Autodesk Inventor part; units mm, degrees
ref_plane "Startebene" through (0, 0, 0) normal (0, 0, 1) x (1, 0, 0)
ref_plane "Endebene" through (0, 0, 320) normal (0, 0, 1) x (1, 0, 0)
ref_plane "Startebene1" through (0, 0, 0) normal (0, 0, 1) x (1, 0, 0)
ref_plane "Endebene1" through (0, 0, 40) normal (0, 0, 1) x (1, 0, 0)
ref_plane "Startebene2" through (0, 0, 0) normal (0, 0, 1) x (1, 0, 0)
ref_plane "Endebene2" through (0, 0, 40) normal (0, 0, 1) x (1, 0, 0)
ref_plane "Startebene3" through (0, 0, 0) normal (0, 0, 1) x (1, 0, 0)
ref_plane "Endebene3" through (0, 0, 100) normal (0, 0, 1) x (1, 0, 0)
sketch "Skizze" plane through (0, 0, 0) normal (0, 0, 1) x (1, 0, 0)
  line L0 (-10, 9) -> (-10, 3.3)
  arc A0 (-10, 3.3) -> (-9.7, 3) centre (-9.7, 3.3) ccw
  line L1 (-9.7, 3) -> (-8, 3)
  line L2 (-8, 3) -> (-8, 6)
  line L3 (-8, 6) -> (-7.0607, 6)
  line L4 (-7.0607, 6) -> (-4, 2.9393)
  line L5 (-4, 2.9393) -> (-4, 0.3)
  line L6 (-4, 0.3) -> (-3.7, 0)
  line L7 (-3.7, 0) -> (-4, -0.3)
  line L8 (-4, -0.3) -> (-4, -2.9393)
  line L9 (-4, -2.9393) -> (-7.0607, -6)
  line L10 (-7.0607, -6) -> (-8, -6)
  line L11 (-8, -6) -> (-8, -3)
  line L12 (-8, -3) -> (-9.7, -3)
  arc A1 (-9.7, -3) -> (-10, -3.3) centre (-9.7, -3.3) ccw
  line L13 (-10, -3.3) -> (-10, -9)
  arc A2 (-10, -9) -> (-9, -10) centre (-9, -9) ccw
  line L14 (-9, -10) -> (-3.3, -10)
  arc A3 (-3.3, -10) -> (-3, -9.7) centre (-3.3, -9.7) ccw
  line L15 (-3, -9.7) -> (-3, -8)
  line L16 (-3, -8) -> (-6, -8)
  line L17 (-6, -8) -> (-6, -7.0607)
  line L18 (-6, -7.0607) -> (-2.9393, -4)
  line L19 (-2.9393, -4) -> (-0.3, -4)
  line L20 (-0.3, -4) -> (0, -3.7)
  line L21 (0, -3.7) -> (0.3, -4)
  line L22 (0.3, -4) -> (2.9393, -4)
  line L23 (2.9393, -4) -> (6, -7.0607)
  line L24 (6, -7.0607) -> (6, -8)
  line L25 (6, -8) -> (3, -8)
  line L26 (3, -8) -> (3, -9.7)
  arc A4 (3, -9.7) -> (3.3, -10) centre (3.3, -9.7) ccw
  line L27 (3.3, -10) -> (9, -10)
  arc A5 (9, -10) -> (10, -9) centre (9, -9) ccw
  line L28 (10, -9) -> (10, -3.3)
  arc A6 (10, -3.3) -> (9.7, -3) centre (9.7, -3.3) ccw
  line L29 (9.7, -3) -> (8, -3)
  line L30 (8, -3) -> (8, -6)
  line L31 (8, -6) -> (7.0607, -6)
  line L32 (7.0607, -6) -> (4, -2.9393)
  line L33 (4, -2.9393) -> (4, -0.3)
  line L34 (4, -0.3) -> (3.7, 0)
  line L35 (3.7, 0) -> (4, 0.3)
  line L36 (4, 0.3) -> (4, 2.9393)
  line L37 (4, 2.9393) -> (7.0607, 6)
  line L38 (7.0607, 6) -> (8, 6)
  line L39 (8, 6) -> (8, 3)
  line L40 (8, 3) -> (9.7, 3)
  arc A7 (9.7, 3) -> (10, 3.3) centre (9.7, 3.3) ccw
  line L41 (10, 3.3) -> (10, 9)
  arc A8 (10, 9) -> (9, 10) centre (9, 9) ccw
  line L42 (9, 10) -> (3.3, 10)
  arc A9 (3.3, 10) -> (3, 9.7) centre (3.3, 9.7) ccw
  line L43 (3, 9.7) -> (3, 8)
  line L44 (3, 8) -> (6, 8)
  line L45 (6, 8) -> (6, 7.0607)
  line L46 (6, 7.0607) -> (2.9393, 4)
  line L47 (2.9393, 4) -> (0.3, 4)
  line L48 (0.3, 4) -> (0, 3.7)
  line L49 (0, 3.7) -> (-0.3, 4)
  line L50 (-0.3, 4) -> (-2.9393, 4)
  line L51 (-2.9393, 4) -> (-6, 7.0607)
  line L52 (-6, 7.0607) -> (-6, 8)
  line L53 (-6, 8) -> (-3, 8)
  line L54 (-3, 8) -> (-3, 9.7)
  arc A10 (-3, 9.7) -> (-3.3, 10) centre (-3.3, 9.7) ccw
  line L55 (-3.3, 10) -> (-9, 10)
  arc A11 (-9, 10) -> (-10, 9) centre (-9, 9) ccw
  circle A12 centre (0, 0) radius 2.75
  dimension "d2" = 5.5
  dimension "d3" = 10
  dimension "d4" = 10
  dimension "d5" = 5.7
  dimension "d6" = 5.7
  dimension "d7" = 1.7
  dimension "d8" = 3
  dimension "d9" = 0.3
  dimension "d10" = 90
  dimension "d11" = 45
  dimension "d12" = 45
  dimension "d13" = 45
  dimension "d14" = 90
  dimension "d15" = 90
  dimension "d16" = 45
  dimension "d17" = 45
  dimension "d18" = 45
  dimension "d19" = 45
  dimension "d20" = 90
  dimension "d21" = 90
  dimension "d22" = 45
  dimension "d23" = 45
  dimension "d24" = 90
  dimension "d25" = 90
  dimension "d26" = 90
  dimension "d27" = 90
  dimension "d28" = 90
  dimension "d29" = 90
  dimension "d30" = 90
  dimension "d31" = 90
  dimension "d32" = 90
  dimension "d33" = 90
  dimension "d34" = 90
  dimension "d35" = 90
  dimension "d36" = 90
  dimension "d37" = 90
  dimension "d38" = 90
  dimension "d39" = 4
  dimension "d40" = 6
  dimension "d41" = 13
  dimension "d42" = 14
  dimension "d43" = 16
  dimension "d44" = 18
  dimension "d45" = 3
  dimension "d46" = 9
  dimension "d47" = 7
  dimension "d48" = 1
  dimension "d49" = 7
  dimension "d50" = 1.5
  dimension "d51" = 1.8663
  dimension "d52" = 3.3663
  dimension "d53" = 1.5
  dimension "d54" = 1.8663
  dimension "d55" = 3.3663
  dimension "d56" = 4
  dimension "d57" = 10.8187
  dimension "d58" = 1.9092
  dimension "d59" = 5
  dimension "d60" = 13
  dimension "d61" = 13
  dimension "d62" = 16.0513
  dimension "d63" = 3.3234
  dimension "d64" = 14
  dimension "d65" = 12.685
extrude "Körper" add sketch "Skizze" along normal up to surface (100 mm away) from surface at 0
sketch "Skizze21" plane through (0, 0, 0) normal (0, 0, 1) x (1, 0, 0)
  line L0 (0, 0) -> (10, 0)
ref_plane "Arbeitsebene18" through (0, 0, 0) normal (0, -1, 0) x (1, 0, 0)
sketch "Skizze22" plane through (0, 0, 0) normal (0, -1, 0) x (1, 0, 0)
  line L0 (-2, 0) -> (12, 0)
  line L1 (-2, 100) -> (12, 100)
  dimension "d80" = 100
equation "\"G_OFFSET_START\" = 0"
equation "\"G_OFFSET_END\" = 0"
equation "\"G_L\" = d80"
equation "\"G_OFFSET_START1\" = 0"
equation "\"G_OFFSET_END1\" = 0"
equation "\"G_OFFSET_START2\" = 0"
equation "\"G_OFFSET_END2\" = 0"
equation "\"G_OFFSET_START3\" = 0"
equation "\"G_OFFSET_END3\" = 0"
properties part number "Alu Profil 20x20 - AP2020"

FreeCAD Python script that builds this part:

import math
import FreeCAD as App
import Part
import Sketcher

doc = App.newDocument("Part")
body = doc.addObject("PartDesign::Body", "Body")

# Sketch on XY plane
sketch1 = doc.addObject("Sketcher::SketchObject", "Sketch")
body.addObject(sketch1)
sketch1.AttachmentSupport = (doc.XY_Plane, [""])
sketch1.MapMode = "FlatFace"
sketch1.addGeometry(Part.ArcOfCircle(Part.Circle(App.Vector(-9, 9, 0), App.Vector(0, 0, 1), 1), math.radians(90), math.radians(180)), False)
sketch1.addGeometry(Part.LineSegment(App.Vector(-10, 9, 0), App.Vector(-10, 3.3, 0)), False)
sketch1.addGeometry(Part.ArcOfCircle(Part.Circle(App.Vector(-9.7, 3.3, 0), App.Vector(0, 0, 1), 0.3), math.radians(180), math.radians(270)), False)
sketch1.addGeometry(Part.LineSegment(App.Vector(-9.7, 3, 0), App.Vector(-8, 3, 0)), False)
sketch1.addGeometry(Part.LineSegment(App.Vector(-8, 3, 0), App.Vector(-8, 6, 0)), False)
sketch1.addGeometry(Part.LineSegment(App.Vector(-8, 6, 0), App.Vector(-7.0607, 6, 0)), False)
sketch1.addGeometry(Part.LineSegment(App.Vector(-7.0607, 6, 0), App.Vector(-4, 2.9393, 0)), False)
sketch1.addGeometry(Part.LineSegment(App.Vector(-4, 2.9393, 0), App.Vector(-4, 0.3, 0)), False)
sketch1.addGeometry(Part.LineSegment(App.Vector(-4, 0.3, 0), App.Vector(-3.7, 0, 0)), False)
sketch1.addGeometry(Part.LineSegment(App.Vector(-3.7, 0, 0), App.Vector(-4, -0.3, 0)), False)
sketch1.addGeometry(Part.LineSegment(App.Vector(-4, -0.3, 0), App.Vector(-4, -2.9393, 0)), False)
sketch1.addGeometry(Part.LineSegment(App.Vector(-4, -2.9393, 0), App.Vector(-7.0607, -6, 0)), False)
sketch1.addGeometry(Part.LineSegment(App.Vector(-7.0607, -6, 0), App.Vector(-8, -6, 0)), False)
sketch1.addGeometry(Part.LineSegment(App.Vector(-8, -6, 0), App.Vector(-8, -3, 0)), False)
sketch1.addGeometry(Part.LineSegment(App.Vector(-8, -3, 0), App.Vector(-9.7, -3, 0)), False)
sketch1.addGeometry(Part.ArcOfCircle(Part.Circle(App.Vector(-9.7, -3.3, 0), App.Vector(0, 0, 1), 0.3), math.radians(90), math.radians(180)), False)
sketch1.addGeometry(Part.LineSegment(App.Vector(-10, -3.3, 0), App.Vector(-10, -9, 0)), False)
sketch1.addGeometry(Part.ArcOfCircle(Part.Circle(App.Vector(-9, -9, 0), App.Vector(0, 0, 1), 1), math.radians(180), math.radians(270)), False)
sketch1.addGeometry(Part.LineSegment(App.Vector(-9, -10, 0), App.Vector(-3.3, -10, 0)), False)
sketch1.addGeometry(Part.ArcOfCircle(Part.Circle(App.Vector(-3.3, -9.7, 0), App.Vector(0, 0, 1), 0.3), math.radians(-90), math.radians(0)), False)
sketch1.addGeometry(Part.LineSegment(App.Vector(-3, -9.7, 0), App.Vector(-3, -8, 0)), False)
sketch1.addGeometry(Part.LineSegment(App.Vector(-3, -8, 0), App.Vector(-6, -8, 0)), False)
sketch1.addGeometry(Part.LineSegment(App.Vector(-6, -8, 0), App.Vector(-6, -7.0607, 0)), False)
sketch1.addGeometry(Part.LineSegment(App.Vector(-6, -7.0607, 0), App.Vector(-2.9393, -4, 0)), False)
sketch1.addGeometry(Part.LineSegment(App.Vector(-2.9393, -4, 0), App.Vector(-0.3, -4, 0)), False)
sketch1.addGeometry(Part.LineSegment(App.Vector(-0.3, -4, 0), App.Vector(0, -3.7, 0)), False)
sketch1.addGeometry(Part.LineSegment(App.Vector(0, -3.7, 0), App.Vector(0.3, -4, 0)), False)
sketch1.addGeometry(Part.LineSegment(App.Vector(0.3, -4, 0), App.Vector(2.9393, -4, 0)), False)
sketch1.addGeometry(Part.LineSegment(App.Vector(2.9393, -4, 0), App.Vector(6, -7.0607, 0)), False)
sketch1.addGeometry(Part.LineSegment(App.Vector(6, -7.0607, 0), App.Vector(6, -8, 0)), False)
sketch1.addGeometry(Part.LineSegment(App.Vector(6, -8, 0), App.Vector(3, -8, 0)), False)
sketch1.addGeometry(Part.LineSegment(App.Vector(3, -8, 0), App.Vector(3, -9.7, 0)), False)
sketch1.addGeometry(Part.ArcOfCircle(Part.Circle(App.Vector(3.3, -9.7, 0), App.Vector(0, 0, 1), 0.3), math.radians(180), math.radians(270)), False)
sketch1.addGeometry(Part.LineSegment(App.Vector(3.3, -10, 0), App.Vector(9, -10, 0)), False)
sketch1.addGeometry(Part.ArcOfCircle(Part.Circle(App.Vector(9, -9, 0), App.Vector(0, 0, 1), 1), math.radians(-90), math.radians(0)), False)
sketch1.addGeometry(Part.LineSegment(App.Vector(10, -9, 0), App.Vector(10, -3.3, 0)), False)
sketch1.addGeometry(Part.ArcOfCircle(Part.Circle(App.Vector(9.7, -3.3, 0), App.Vector(0, 0, 1), 0.3), math.radians(0), math.radians(90)), False)
sketch1.addGeometry(Part.LineSegment(App.Vector(9.7, -3, 0), App.Vector(8, -3, 0)), False)
sketch1.addGeometry(Part.LineSegment(App.Vector(8, -3, 0), App.Vector(8, -6, 0)), False)
sketch1.addGeometry(Part.LineSegment(App.Vector(8, -6, 0), App.Vector(7.0607, -6, 0)), False)
sketch1.addGeometry(Part.LineSegment(App.Vector(7.0607, -6, 0), App.Vector(4, -2.9393, 0)), False)
sketch1.addGeometry(Part.LineSegment(App.Vector(4, -2.9393, 0), App.Vector(4, -0.3, 0)), False)
sketch1.addGeometry(Part.LineSegment(App.Vector(4, -0.3, 0), App.Vector(3.7, 0, 0)), False)
sketch1.addGeometry(Part.LineSegment(App.Vector(3.7, 0, 0), App.Vector(4, 0.3, 0)), False)
sketch1.addGeometry(Part.LineSegment(App.Vector(4, 0.3, 0), App.Vector(4, 2.9393, 0)), False)
sketch1.addGeometry(Part.LineSegment(App.Vector(4, 2.9393, 0), App.Vector(7.0607, 6, 0)), False)
sketch1.addGeometry(Part.LineSegment(App.Vector(7.0607, 6, 0), App.Vector(8, 6, 0)), False)
sketch1.addGeometry(Part.LineSegment(App.Vector(8, 6, 0), App.Vector(8, 3, 0)), False)
sketch1.addGeometry(Part.LineSegment(App.Vector(8, 3, 0), App.Vector(9.7, 3, 0)), False)
sketch1.addGeometry(Part.ArcOfCircle(Part.Circle(App.Vector(9.7, 3.3, 0), App.Vector(0, 0, 1), 0.3), math.radians(-90), math.radians(0)), False)
sketch1.addGeometry(Part.LineSegment(App.Vector(10, 3.3, 0), App.Vector(10, 9, 0)), False)
sketch1.addGeometry(Part.ArcOfCircle(Part.Circle(App.Vector(9, 9, 0), App.Vector(0, 0, 1), 1), math.radians(0), math.radians(90)), False)
sketch1.addGeometry(Part.LineSegment(App.Vector(9, 10, 0), App.Vector(3.3, 10, 0)), False)
sketch1.addGeometry(Part.ArcOfCircle(Part.Circle(App.Vector(3.3, 9.7, 0), App.Vector(0, 0, 1), 0.3), math.radians(90), math.radians(180)), False)
sketch1.addGeometry(Part.LineSegment(App.Vector(3, 9.7, 0), App.Vector(3, 8, 0)), False)
sketch1.addGeometry(Part.LineSegment(App.Vector(3, 8, 0), App.Vector(6, 8, 0)), False)
sketch1.addGeometry(Part.LineSegment(App.Vector(6, 8, 0), App.Vector(6, 7.0607, 0)), False)
sketch1.addGeometry(Part.LineSegment(App.Vector(6, 7.0607, 0), App.Vector(2.9393, 4, 0)), False)
sketch1.addGeometry(Part.LineSegment(App.Vector(2.9393, 4, 0), App.Vector(0.3, 4, 0)), False)
sketch1.addGeometry(Part.LineSegment(App.Vector(0.3, 4, 0), App.Vector(0, 3.7, 0)), False)
sketch1.addGeometry(Part.LineSegment(App.Vector(0, 3.7, 0), App.Vector(-0.3, 4, 0)), False)
sketch1.addGeometry(Part.LineSegment(App.Vector(-0.3, 4, 0), App.Vector(-2.9393, 4, 0)), False)
sketch1.addGeometry(Part.LineSegment(App.Vector(-2.9393, 4, 0), App.Vector(-6, 7.0607, 0)), False)
sketch1.addGeometry(Part.LineSegment(App.Vector(-6, 7.0607, 0), App.Vector(-6, 8, 0)), False)
sketch1.addGeometry(Part.LineSegment(App.Vector(-6, 8, 0), App.Vector(-3, 8, 0)), False)
sketch1.addGeometry(Part.LineSegment(App.Vector(-3, 8, 0), App.Vector(-3, 9.7, 0)), False)
sketch1.addGeometry(Part.ArcOfCircle(Part.Circle(App.Vector(-3.3, 9.7, 0), App.Vector(0, 0, 1), 0.3), math.radians(0), math.radians(90)), False)
sketch1.addGeometry(Part.LineSegment(App.Vector(-3.3, 10, 0), App.Vector(-9, 10, 0)), False)
sketch1.addGeometry(Part.Circle(App.Vector(0, 0, 0), App.Vector(0, 0, 1), 2.75), False)
sketch1.addConstraint(Sketcher.Constraint("Tangent", 0, 2, 1, 1))
sketch1.addConstraint(Sketcher.Constraint("Tangent", 1, 2, 2, 1))
sketch1.addConstraint(Sketcher.Constraint("Tangent", 2, 2, 3, 1))
sketch1.addConstraint(Sketcher.Constraint("Coincident", 3, 2, 4, 1))
sketch1.addConstraint(Sketcher.Constraint("Coincident", 4, 2, 5, 1))
sketch1.addConstraint(Sketcher.Constraint("Coincident", 5, 2, 6, 1))
sketch1.addConstraint(Sketcher.Constraint("Coincident", 6, 2, 7, 1))
sketch1.addConstraint(Sketcher.Constraint("Coincident", 7, 2, 8, 1))
sketch1.addConstraint(Sketcher.Constraint("Coincident", 8, 2, 9, 1))
sketch1.addConstraint(Sketcher.Constraint("Coincident", 9, 2, 10, 1))
sketch1.addConstraint(Sketcher.Constraint("Coincident", 10, 2, 11, 1))
sketch1.addConstraint(Sketcher.Constraint("Coincident", 11, 2, 12, 1))
sketch1.addConstraint(Sketcher.Constraint("Coincident", 12, 2, 13, 1))
sketch1.addConstraint(Sketcher.Constraint("Coincident", 13, 2, 14, 1))
sketch1.addConstraint(Sketcher.Constraint("Tangent", 14, 2, 15, 1))
sketch1.addConstraint(Sketcher.Constraint("Tangent", 15, 2, 16, 1))
sketch1.addConstraint(Sketcher.Constraint("Tangent", 16, 2, 17, 1))
sketch1.addConstraint(Sketcher.Constraint("Tangent", 17, 2, 18, 1))
sketch1.addConstraint(Sketcher.Constraint("Tangent", 18, 2, 19, 1))
sketch1.addConstraint(Sketcher.Constraint("Tangent", 19, 2, 20, 1))
sketch1.addConstraint(Sketcher.Constraint("Coincident", 20, 2, 21, 1))
sketch1.addConstraint(Sketcher.Constraint("Coincident", 21, 2, 22, 1))
sketch1.addConstraint(Sketcher.Constraint("Coincident", 22, 2, 23, 1))
sketch1.addConstraint(Sketcher.Constraint("Coincident", 23, 2, 24, 1))
sketch1.addConstraint(Sketcher.Constraint("Coincident", 24, 2, 25, 1))
sketch1.addConstraint(Sketcher.Constraint("Coincident", 25, 2, 26, 1))
sketch1.addConstraint(Sketcher.Constraint("Coincident", 26, 2, 27, 1))
sketch1.addConstraint(Sketcher.Constraint("Coincident", 27, 2, 28, 1))
sketch1.addConstraint(Sketcher.Constraint("Coincident", 28, 2, 29, 1))
sketch1.addConstraint(Sketcher.Constraint("Coincident", 29, 2, 30, 1))
sketch1.addConstraint(Sketcher.Constraint("Coincident", 30, 2, 31, 1))
sketch1.addConstraint(Sketcher.Constraint("Tangent", 31, 2, 32, 1))
sketch1.addConstraint(Sketcher.Constraint("Tangent", 32, 2, 33, 1))
sketch1.addConstraint(Sketcher.Constraint("Tangent", 33, 2, 34, 1))
sketch1.addConstraint(Sketcher.Constraint("Tangent", 34, 2, 35, 1))
sketch1.addConstraint(Sketcher.Constraint("Tangent", 35, 2, 36, 1))
sketch1.addConstraint(Sketcher.Constraint("Tangent", 36, 2, 37, 1))
sketch1.addConstraint(Sketcher.Constraint("Coincident", 37, 2, 38, 1))
sketch1.addConstraint(Sketcher.Constraint("Coincident", 38, 2, 39, 1))
sketch1.addConstraint(Sketcher.Constraint("Coincident", 39, 2, 40, 1))
sketch1.addConstraint(Sketcher.Constraint("Coincident", 40, 2, 41, 1))
sketch1.addConstraint(Sketcher.Constraint("Coincident", 41, 2, 42, 1))
sketch1.addConstraint(Sketcher.Constraint("Coincident", 42, 2, 43, 1))
sketch1.addConstraint(Sketcher.Constraint("Coincident", 43, 2, 44, 1))
sketch1.addConstraint(Sketcher.Constraint("Coincident", 44, 2, 45, 1))
sketch1.addConstraint(Sketcher.Constraint("Coincident", 45, 2, 46, 1))
sketch1.addConstraint(Sketcher.Constraint("Coincident", 46, 2, 47, 1))
sketch1.addConstraint(Sketcher.Constraint("Coincident", 47, 2, 48, 1))
sketch1.addConstraint(Sketcher.Constraint("Tangent", 48, 2, 49, 1))
sketch1.addConstraint(Sketcher.Constraint("Tangent", 49, 2, 50, 1))
sketch1.addConstraint(Sketcher.Constraint("Tangent", 50, 2, 51, 1))
sketch1.addConstraint(Sketcher.Constraint("Tangent", 51, 2, 52, 1))
sketch1.addConstraint(Sketcher.Constraint("Tangent", 52, 2, 53, 1))
sketch1.addConstraint(Sketcher.Constraint("Tangent", 53, 2, 54, 1))
sketch1.addConstraint(Sketcher.Constraint("Coincident", 54, 2, 55, 1))
sketch1.addConstraint(Sketcher.Constraint("Coincident", 55, 2, 56, 1))
sketch1.addConstraint(Sketcher.Constraint("Coincident", 56, 2, 57, 1))
sketch1.addConstraint(Sketcher.Constraint("Coincident", 57, 2, 58, 1))
sketch1.addConstraint(Sketcher.Constraint("Coincident", 58, 2, 59, 1))
sketch1.addConstraint(Sketcher.Constraint("Coincident", 59, 2, 60, 1))
sketch1.addConstraint(Sketcher.Constraint("Coincident", 60, 2, 61, 1))
sketch1.addConstraint(Sketcher.Constraint("Coincident", 61, 2, 62, 1))
sketch1.addConstraint(Sketcher.Constraint("Coincident", 62, 2, 63, 1))
sketch1.addConstraint(Sketcher.Constraint("Coincident", 63, 2, 64, 1))
sketch1.addConstraint(Sketcher.Constraint("Coincident", 64, 2, 65, 1))
sketch1.addConstraint(Sketcher.Constraint("Tangent", 65, 2, 66, 1))
sketch1.addConstraint(Sketcher.Constraint("Tangent", 66, 2, 67, 1))
sketch1.addConstraint(Sketcher.Constraint("Tangent", 67, 2, 0, 1))
sketch1.addConstraint(Sketcher.Constraint("Vertical", 1))
sketch1.addConstraint(Sketcher.Constraint("Horizontal", 3))
sketch1.addConstraint(Sketcher.Constraint("Vertical", 4))
sketch1.addConstraint(Sketcher.Constraint("Horizontal", 5))
sketch1.addConstraint(Sketcher.Constraint("Vertical", 7))
sketch1.addConstraint(Sketcher.Constraint("Vertical", 10))
sketch1.addConstraint(Sketcher.Constraint("Horizontal", 12))
sketch1.addConstraint(Sketcher.Constraint("Vertical", 13))
sketch1.addConstraint(Sketcher.Constraint("Horizontal", 14))
sketch1.addConstraint(Sketcher.Constraint("Vertical", 16))
sketch1.addConstraint(Sketcher.Constraint("Horizontal", 18))
sketch1.addConstraint(Sketcher.Constraint("Vertical", 20))
sketch1.addConstraint(Sketcher.Constraint("Horizontal", 21))
sketch1.addConstraint(Sketcher.Constraint("Vertical", 22))
sketch1.addConstraint(Sketcher.Constraint("Horizontal", 24))
sketch1.addConstraint(Sketcher.Constraint("Horizontal", 27))
sketch1.addConstraint(Sketcher.Constraint("Vertical", 29))
sketch1.addConstraint(Sketcher.Constraint("Horizontal", 30))
sketch1.addConstraint(Sketcher.Constraint("Vertical", 31))
sketch1.addConstraint(Sketcher.Constraint("Horizontal", 33))
sketch1.addConstraint(Sketcher.Constraint("Vertical", 35))
sketch1.addConstraint(Sketcher.Constraint("Horizontal", 37))
sketch1.addConstraint(Sketcher.Constraint("Vertical", 38))
sketch1.addConstraint(Sketcher.Constraint("Horizontal", 39))
sketch1.addConstraint(Sketcher.Constraint("Vertical", 41))
sketch1.addConstraint(Sketcher.Constraint("Vertical", 44))
sketch1.addConstraint(Sketcher.Constraint("Horizontal", 46))
sketch1.addConstraint(Sketcher.Constraint("Vertical", 47))
sketch1.addConstraint(Sketcher.Constraint("Horizontal", 48))
sketch1.addConstraint(Sketcher.Constraint("Vertical", 50))
sketch1.addConstraint(Sketcher.Constraint("Horizontal", 52))
sketch1.addConstraint(Sketcher.Constraint("Vertical", 54))
sketch1.addConstraint(Sketcher.Constraint("Horizontal", 55))
sketch1.addConstraint(Sketcher.Constraint("Vertical", 56))
sketch1.addConstraint(Sketcher.Constraint("Horizontal", 58))
sketch1.addConstraint(Sketcher.Constraint("Horizontal", 61))
sketch1.addConstraint(Sketcher.Constraint("Vertical", 63))
sketch1.addConstraint(Sketcher.Constraint("Horizontal", 64))
sketch1.addConstraint(Sketcher.Constraint("Vertical", 65))
sketch1.addConstraint(Sketcher.Constraint("Horizontal", 67))
sketch1.addConstraint(Sketcher.Constraint("Coincident", 68, 3, -1, 1))
sketch1.addConstraint(Sketcher.Constraint("Equal", 2, 15))
sketch1.addConstraint(Sketcher.Constraint("Equal", 0, 17))
sketch1.addConstraint(Sketcher.Constraint("Equal", 15, 19))
sketch1.addConstraint(Sketcher.Constraint("Equal", 19, 32))
sketch1.addConstraint(Sketcher.Constraint("Equal", 17, 34))
sketch1.addConstraint(Sketcher.Constraint("Equal", 32, 36))
sketch1.addConstraint(Sketcher.Constraint("Equal", 36, 49))
sketch1.addConstraint(Sketcher.Constraint("Equal", 34, 51))
sketch1.addConstraint(Sketcher.Constraint("Equal", 49, 53))
sketch1.addConstraint(Sketcher.Constraint("Equal", 53, 66))
sketch1.addConstraint(Sketcher.Constraint("Symmetric", 0, 3, 34, 3, -1, 1))
sketch1.addConstraint(Sketcher.Constraint("Symmetric", 15, 3, 49, 3, -1, 1))
sketch1.addConstraint(Sketcher.Constraint("Symmetric", 19, 3, 53, 3, -1, 1))
sketch1.addConstraint(Sketcher.Constraint("Symmetric", 3, 2, 37, 2, -1, 1))
sketch1.addConstraint(Sketcher.Constraint("Symmetric", 5, 2, 39, 2, -1, 1))
sketch1.addConstraint(Sketcher.Constraint("Symmetric", 6, 2, 40, 2, -1, 1))
sketch1.addConstraint(Sketcher.Constraint("Symmetric", 8, 2, 42, 2, -1, 1))
sketch1.addConstraint(Sketcher.Constraint("Symmetric", 9, 2, 43, 2, -1, 1))
sketch1.addConstraint(Sketcher.Constraint("Symmetric", 11, 2, 45, 2, -1, 1))
sketch1.addConstraint(Sketcher.Constraint("Symmetric", 21, 2, 55, 2, -1, 1))
sketch1.addConstraint(Sketcher.Constraint("Symmetric", 23, 2, 57, 2, -1, 1))
sketch1.addConstraint(Sketcher.Constraint("Symmetric", 25, 2, 59, 2, -1, 1))
sketch1.addConstraint(Sketcher.Constraint("Symmetric", 26, 2, 60, 2, -1, 1))
sketch1.addConstraint(Sketcher.Constraint("Symmetric", 28, 2, 62, 2, -1, 1))
sketch1.addConstraint(Sketcher.Constraint("Symmetric", 30, 2, 64, 2, -1, 1))
sketch1.addConstraint(Sketcher.Constraint("Symmetric", 19, 3, 32, 3, -2))
sketch1.addConstraint(Sketcher.Constraint("Symmetric", 15, 3, 36, 3, -2))
sketch1.addConstraint(Sketcher.Constraint("Symmetric", 24, 2, 26, 2, -2))
sketch1.addConstraint(Sketcher.Constraint("Symmetric", 22, 2, 28, 2, -2))
sketch1.addConstraint(Sketcher.Constraint("Symmetric", 12, 2, 38, 2, -2))
sketch1.addConstraint(Sketcher.Constraint("Symmetric", 10, 2, 40, 2, -2))
sketch1.addConstraint(Sketcher.Constraint("PointOnObject", 8, 2, -1))
sketch1.addConstraint(Sketcher.Constraint("PointOnObject", 25, 2, -2))
sketch1.addConstraint(Sketcher.Constraint("Parallel", 6, 8))
sketch1.addConstraint(Sketcher.Constraint("Perpendicular", 8, 9))
sketch1.addConstraint(Sketcher.Constraint("Parallel", 9, 11))
sketch1.addConstraint(Sketcher.Constraint("Parallel", 11, 23))
sketch1.addConstraint(Sketcher.Constraint("Parallel", 23, 25))
sketch1.addConstraint(Sketcher.Constraint("Perpendicular", 25, 26))
sketch1.addConstraint(Sketcher.Constraint("Parallel", 26, 28))
sketch1.addConstraint(Sketcher.Constraint("Parallel", 40, 42))
sketch1.addConstraint(Sketcher.Constraint("Parallel", 43, 45))
sketch1.addConstraint(Sketcher.Constraint("Parallel", 45, 57))
sketch1.addConstraint(Sketcher.Constraint("Parallel", 57, 59))
sketch1.addConstraint(Sketcher.Constraint("Parallel", 60, 62))
sketch1.addConstraint(Sketcher.Constraint("Horizontal", 21, 2, 29, 2))
sketch1.addConstraint(Sketcher.Constraint("Vertical", 38, 2, 46, 2))
sketch1.addConstraint(Sketcher.Constraint("Equal", 67, 1))
sketch1.addConstraint(Sketcher.Constraint("Equal", 64, 4))
sketch1.addConstraint(Sketcher.Constraint("Equal", 61, 7))
sketch1.addConstraint(Sketcher.Constraint("Equal", 48, 20))
sketch1.addConstraint(Sketcher.Constraint("Equal", 46, 22))
sketch1.addConstraint(Sketcher.Constraint("Equal", 11, 23))
sketch1.addConstraint(Sketcher.Constraint("Equal", 9, 25))
sketch1.addConstraint(Sketcher.Constraint("Radius", 0, 1.0))
sketch1.addConstraint(Sketcher.Constraint("Diameter", 68, 5.5))
sketch1.addConstraint(Sketcher.Constraint("Radius", 2, 0.3))
sketch1.addConstraint(Sketcher.Constraint("DistanceX", 21, 2, 21, 1, 3.0))
sketch1.addConstraint(Sketcher.Constraint("DistanceX", 3, 1, 3, 2, 1.7))
sketch1.addConstraint(Sketcher.Constraint("DistanceX", 18, 1, 18, 2, 5.7))
sketch1.addConstraint(Sketcher.Constraint("DistanceX", 0, 3, -1, 1, 9.0))
sketch1.addConstraint(Sketcher.Constraint("DistanceX", 6, 2, -1, 1, 4.0))
sketch1.addConstraint(Sketcher.Constraint("DistanceY", -1, 1, 7, 2, 0.3))
sketch1.addConstraint(Sketcher.Constraint("DistanceX", 5, 1, 5, 2, 0.9393))
pad1 = doc.addObject("PartDesign::Pad", "Pad")
body.addObject(pad1)
pad1.Profile = sketch1
pad1.Length = 100

doc.recompute()
